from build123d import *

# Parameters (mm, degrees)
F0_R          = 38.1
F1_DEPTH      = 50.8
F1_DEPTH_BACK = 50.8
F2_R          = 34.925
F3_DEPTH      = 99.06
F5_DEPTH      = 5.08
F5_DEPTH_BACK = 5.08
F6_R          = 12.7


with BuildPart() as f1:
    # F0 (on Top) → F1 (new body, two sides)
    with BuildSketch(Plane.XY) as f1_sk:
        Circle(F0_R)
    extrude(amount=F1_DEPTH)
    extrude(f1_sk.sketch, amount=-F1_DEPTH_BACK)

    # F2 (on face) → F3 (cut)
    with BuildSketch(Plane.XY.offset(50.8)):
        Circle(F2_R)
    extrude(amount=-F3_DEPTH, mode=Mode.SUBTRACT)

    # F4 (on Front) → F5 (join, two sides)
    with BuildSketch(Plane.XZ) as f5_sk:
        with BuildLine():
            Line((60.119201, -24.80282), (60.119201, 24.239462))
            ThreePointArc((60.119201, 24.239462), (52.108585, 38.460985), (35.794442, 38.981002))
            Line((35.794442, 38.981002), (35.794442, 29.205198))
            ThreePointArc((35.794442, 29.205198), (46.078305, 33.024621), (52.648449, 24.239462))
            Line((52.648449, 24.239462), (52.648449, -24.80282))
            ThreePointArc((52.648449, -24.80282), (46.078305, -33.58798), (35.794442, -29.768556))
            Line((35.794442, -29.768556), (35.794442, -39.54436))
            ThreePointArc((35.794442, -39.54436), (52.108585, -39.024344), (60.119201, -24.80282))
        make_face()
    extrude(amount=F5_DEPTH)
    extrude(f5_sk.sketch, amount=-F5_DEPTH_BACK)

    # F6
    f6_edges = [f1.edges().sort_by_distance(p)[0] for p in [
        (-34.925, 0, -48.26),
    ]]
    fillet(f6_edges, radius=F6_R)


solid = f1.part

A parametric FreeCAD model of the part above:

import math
import FreeCAD as App
import Part
import Sketcher
from FreeCAD import Vector
Q = App.Units.Quantity


def edges_at(feature, points):
    """Names of the edges that pass closest to the given points."""
    edges = feature.Shape.Edges
    near = lambda p: min(range(len(edges)), key=lambda i: edges[i].distToShape(Part.Vertex(*p))[0])
    return sorted({f"Edge{near(p) + 1}" for p in points})

doc = App.newDocument("Part")
body = doc.addObject("PartDesign::Body", "Body")

# Sketch on XY plane
sketch1 = body.newObject("Sketcher::SketchObject", "Sketch")
sketch1.AttachmentSupport = (doc.getObject("XY_Plane"), [""])
sketch1.MapMode = "FlatFace"
sketch1.addGeometry(Part.Circle(Vector(0, 0, 0), Vector(0, 0, 1), 38), False)
sketch1.addConstraint(Sketcher.Constraint("Coincident", 0, 3, -1, 1))
sketch1.addConstraint(Sketcher.Constraint("Diameter", 0, Q("3 in")))
pad1 = body.newObject("PartDesign::Pad", "Pad")
pad1.Profile = sketch1
pad1.Type = "TwoLengths"
pad1.Length = Q("2 in")
pad1.Length2 = Q("2 in")

# Sketch on XY plane
sketch2 = body.newObject("Sketcher::SketchObject", "Sketch001")
sketch2.AttachmentSupport = (doc.getObject("XY_Plane"), [""])
sketch2.MapMode = "FlatFace"
sketch2.AttachmentOffset = App.Placement(Vector(0, 0, 2 * 25.4), App.Rotation())
sketch2.addGeometry(Part.Circle(Vector(0, 0, 0), Vector(0, 0, 1), 35), False)
sketch2.addConstraint(Sketcher.Constraint("Coincident", 0, 3, -1, 1))
sketch2.addConstraint(Sketcher.Constraint("Diameter", 0, Q("2.75 in")))
pocket1 = body.newObject("PartDesign::Pocket", "Pocket")
pocket1.Profile = sketch2
pocket1.Length = Q("3.9 in")

# Sketch on XZ plane
sketch3 = body.newObject("Sketcher::SketchObject", "Sketch002")
sketch3.AttachmentSupport = (doc.getObject("XZ_Plane"), [""])
sketch3.MapMode = "FlatFace"
sketch3.addGeometry(Part.LineSegment(Vector(60, -25, 0), Vector(60, 24, 0)), False)
sketch3.addGeometry(Part.ArcOfCircle(Part.Circle(Vector(43, 24, 0), Vector(0, 0, 1), 17), math.radians(0), math.radians(118)), False)
sketch3.addGeometry(Part.LineSegment(Vector(36, 39, 0), Vector(36, 29, 0)), False)
sketch3.addGeometry(Part.ArcOfCircle(Part.Circle(Vector(43, 24, 0), Vector(0, 0, 1), 9), math.radians(0), math.radians(147)), False)
sketch3.addGeometry(Part.LineSegment(Vector(53, 24, 0), Vector(53, -25, 0)), False)
sketch3.addGeometry(Part.ArcOfCircle(Part.Circle(Vector(43, -25, 0), Vector(0, 0, 1), 9), math.radians(-147), math.radians(0)), False)
sketch3.addGeometry(Part.LineSegment(Vector(36, -30, 0), Vector(36, -40, 0)), False)
sketch3.addGeometry(Part.ArcOfCircle(Part.Circle(Vector(43, -25, 0), Vector(0, 0, 1), 17), math.radians(-118), math.radians(0)), False)
sketch3.addConstraint(Sketcher.Constraint("Tangent", 0, 2, 1, 1))
sketch3.addConstraint(Sketcher.Constraint("Coincident", 1, 2, 2, 1))
sketch3.addConstraint(Sketcher.Constraint("Coincident", 2, 2, 3, 2))
sketch3.addConstraint(Sketcher.Constraint("Tangent", 3, 1, 4, 1))
sketch3.addConstraint(Sketcher.Constraint("Tangent", 4, 2, 5, 2))
sketch3.addConstraint(Sketcher.Constraint("Coincident", 5, 1, 6, 1))
sketch3.addConstraint(Sketcher.Constraint("Coincident", 6, 2, 7, 1))
sketch3.addConstraint(Sketcher.Constraint("Tangent", 7, 2, 0, 1))
sketch3.addConstraint(Sketcher.Constraint("Vertical", 0))
sketch3.addConstraint(Sketcher.Constraint("Vertical", 2))
sketch3.addConstraint(Sketcher.Constraint("Vertical", 4))
sketch3.addConstraint(Sketcher.Constraint("Vertical", 6))
sketch3.addConstraint(Sketcher.Constraint("Coincident", 3, 3, 1, 3))
sketch3.addConstraint(Sketcher.Constraint("Coincident", 7, 3, 5, 3))
sketch3.addConstraint(Sketcher.Constraint("Equal", 3, 5))
sketch3.addConstraint(Sketcher.Constraint("Vertical", 2, 2, 5, 1))
sketch3.addConstraint(Sketcher.Constraint("Radius", 1, Q("16.62929 mm")))
sketch3.addConstraint(Sketcher.Constraint("Radius", 3, Q("9.158537 mm")))
sketch3.addConstraint(Sketcher.Constraint("DistanceY", 7, 3, 2, 2, Q("2.1263 in")))
sketch3.addConstraint(Sketcher.Constraint("DistanceX", -1, 1, 0, 2, Q("60.119201 mm")))
sketch3.addConstraint(Sketcher.Constraint("DistanceY", 0, 1, 0, 2, Q("49.042282 mm")))
sketch3.addConstraint(Sketcher.Constraint("DistanceY", -1, 1, 1, 3, Q("24.239461 mm")))
pad2 = body.newObject("PartDesign::Pad", "Pad001")
pad2.Profile = sketch3
pad2.Type = "TwoLengths"
pad2.Length = Q("0.2 in")
pad2.Length2 = Q("0.2 in")
doc.recompute()

fillet = body.newObject("PartDesign::Fillet", "Fillet")
fillet.Base = (pad2, edges_at(pad2, [(-34.925, 0, -48.26)]))
fillet.Radius = Q("0.5 in")

doc.recompute()
